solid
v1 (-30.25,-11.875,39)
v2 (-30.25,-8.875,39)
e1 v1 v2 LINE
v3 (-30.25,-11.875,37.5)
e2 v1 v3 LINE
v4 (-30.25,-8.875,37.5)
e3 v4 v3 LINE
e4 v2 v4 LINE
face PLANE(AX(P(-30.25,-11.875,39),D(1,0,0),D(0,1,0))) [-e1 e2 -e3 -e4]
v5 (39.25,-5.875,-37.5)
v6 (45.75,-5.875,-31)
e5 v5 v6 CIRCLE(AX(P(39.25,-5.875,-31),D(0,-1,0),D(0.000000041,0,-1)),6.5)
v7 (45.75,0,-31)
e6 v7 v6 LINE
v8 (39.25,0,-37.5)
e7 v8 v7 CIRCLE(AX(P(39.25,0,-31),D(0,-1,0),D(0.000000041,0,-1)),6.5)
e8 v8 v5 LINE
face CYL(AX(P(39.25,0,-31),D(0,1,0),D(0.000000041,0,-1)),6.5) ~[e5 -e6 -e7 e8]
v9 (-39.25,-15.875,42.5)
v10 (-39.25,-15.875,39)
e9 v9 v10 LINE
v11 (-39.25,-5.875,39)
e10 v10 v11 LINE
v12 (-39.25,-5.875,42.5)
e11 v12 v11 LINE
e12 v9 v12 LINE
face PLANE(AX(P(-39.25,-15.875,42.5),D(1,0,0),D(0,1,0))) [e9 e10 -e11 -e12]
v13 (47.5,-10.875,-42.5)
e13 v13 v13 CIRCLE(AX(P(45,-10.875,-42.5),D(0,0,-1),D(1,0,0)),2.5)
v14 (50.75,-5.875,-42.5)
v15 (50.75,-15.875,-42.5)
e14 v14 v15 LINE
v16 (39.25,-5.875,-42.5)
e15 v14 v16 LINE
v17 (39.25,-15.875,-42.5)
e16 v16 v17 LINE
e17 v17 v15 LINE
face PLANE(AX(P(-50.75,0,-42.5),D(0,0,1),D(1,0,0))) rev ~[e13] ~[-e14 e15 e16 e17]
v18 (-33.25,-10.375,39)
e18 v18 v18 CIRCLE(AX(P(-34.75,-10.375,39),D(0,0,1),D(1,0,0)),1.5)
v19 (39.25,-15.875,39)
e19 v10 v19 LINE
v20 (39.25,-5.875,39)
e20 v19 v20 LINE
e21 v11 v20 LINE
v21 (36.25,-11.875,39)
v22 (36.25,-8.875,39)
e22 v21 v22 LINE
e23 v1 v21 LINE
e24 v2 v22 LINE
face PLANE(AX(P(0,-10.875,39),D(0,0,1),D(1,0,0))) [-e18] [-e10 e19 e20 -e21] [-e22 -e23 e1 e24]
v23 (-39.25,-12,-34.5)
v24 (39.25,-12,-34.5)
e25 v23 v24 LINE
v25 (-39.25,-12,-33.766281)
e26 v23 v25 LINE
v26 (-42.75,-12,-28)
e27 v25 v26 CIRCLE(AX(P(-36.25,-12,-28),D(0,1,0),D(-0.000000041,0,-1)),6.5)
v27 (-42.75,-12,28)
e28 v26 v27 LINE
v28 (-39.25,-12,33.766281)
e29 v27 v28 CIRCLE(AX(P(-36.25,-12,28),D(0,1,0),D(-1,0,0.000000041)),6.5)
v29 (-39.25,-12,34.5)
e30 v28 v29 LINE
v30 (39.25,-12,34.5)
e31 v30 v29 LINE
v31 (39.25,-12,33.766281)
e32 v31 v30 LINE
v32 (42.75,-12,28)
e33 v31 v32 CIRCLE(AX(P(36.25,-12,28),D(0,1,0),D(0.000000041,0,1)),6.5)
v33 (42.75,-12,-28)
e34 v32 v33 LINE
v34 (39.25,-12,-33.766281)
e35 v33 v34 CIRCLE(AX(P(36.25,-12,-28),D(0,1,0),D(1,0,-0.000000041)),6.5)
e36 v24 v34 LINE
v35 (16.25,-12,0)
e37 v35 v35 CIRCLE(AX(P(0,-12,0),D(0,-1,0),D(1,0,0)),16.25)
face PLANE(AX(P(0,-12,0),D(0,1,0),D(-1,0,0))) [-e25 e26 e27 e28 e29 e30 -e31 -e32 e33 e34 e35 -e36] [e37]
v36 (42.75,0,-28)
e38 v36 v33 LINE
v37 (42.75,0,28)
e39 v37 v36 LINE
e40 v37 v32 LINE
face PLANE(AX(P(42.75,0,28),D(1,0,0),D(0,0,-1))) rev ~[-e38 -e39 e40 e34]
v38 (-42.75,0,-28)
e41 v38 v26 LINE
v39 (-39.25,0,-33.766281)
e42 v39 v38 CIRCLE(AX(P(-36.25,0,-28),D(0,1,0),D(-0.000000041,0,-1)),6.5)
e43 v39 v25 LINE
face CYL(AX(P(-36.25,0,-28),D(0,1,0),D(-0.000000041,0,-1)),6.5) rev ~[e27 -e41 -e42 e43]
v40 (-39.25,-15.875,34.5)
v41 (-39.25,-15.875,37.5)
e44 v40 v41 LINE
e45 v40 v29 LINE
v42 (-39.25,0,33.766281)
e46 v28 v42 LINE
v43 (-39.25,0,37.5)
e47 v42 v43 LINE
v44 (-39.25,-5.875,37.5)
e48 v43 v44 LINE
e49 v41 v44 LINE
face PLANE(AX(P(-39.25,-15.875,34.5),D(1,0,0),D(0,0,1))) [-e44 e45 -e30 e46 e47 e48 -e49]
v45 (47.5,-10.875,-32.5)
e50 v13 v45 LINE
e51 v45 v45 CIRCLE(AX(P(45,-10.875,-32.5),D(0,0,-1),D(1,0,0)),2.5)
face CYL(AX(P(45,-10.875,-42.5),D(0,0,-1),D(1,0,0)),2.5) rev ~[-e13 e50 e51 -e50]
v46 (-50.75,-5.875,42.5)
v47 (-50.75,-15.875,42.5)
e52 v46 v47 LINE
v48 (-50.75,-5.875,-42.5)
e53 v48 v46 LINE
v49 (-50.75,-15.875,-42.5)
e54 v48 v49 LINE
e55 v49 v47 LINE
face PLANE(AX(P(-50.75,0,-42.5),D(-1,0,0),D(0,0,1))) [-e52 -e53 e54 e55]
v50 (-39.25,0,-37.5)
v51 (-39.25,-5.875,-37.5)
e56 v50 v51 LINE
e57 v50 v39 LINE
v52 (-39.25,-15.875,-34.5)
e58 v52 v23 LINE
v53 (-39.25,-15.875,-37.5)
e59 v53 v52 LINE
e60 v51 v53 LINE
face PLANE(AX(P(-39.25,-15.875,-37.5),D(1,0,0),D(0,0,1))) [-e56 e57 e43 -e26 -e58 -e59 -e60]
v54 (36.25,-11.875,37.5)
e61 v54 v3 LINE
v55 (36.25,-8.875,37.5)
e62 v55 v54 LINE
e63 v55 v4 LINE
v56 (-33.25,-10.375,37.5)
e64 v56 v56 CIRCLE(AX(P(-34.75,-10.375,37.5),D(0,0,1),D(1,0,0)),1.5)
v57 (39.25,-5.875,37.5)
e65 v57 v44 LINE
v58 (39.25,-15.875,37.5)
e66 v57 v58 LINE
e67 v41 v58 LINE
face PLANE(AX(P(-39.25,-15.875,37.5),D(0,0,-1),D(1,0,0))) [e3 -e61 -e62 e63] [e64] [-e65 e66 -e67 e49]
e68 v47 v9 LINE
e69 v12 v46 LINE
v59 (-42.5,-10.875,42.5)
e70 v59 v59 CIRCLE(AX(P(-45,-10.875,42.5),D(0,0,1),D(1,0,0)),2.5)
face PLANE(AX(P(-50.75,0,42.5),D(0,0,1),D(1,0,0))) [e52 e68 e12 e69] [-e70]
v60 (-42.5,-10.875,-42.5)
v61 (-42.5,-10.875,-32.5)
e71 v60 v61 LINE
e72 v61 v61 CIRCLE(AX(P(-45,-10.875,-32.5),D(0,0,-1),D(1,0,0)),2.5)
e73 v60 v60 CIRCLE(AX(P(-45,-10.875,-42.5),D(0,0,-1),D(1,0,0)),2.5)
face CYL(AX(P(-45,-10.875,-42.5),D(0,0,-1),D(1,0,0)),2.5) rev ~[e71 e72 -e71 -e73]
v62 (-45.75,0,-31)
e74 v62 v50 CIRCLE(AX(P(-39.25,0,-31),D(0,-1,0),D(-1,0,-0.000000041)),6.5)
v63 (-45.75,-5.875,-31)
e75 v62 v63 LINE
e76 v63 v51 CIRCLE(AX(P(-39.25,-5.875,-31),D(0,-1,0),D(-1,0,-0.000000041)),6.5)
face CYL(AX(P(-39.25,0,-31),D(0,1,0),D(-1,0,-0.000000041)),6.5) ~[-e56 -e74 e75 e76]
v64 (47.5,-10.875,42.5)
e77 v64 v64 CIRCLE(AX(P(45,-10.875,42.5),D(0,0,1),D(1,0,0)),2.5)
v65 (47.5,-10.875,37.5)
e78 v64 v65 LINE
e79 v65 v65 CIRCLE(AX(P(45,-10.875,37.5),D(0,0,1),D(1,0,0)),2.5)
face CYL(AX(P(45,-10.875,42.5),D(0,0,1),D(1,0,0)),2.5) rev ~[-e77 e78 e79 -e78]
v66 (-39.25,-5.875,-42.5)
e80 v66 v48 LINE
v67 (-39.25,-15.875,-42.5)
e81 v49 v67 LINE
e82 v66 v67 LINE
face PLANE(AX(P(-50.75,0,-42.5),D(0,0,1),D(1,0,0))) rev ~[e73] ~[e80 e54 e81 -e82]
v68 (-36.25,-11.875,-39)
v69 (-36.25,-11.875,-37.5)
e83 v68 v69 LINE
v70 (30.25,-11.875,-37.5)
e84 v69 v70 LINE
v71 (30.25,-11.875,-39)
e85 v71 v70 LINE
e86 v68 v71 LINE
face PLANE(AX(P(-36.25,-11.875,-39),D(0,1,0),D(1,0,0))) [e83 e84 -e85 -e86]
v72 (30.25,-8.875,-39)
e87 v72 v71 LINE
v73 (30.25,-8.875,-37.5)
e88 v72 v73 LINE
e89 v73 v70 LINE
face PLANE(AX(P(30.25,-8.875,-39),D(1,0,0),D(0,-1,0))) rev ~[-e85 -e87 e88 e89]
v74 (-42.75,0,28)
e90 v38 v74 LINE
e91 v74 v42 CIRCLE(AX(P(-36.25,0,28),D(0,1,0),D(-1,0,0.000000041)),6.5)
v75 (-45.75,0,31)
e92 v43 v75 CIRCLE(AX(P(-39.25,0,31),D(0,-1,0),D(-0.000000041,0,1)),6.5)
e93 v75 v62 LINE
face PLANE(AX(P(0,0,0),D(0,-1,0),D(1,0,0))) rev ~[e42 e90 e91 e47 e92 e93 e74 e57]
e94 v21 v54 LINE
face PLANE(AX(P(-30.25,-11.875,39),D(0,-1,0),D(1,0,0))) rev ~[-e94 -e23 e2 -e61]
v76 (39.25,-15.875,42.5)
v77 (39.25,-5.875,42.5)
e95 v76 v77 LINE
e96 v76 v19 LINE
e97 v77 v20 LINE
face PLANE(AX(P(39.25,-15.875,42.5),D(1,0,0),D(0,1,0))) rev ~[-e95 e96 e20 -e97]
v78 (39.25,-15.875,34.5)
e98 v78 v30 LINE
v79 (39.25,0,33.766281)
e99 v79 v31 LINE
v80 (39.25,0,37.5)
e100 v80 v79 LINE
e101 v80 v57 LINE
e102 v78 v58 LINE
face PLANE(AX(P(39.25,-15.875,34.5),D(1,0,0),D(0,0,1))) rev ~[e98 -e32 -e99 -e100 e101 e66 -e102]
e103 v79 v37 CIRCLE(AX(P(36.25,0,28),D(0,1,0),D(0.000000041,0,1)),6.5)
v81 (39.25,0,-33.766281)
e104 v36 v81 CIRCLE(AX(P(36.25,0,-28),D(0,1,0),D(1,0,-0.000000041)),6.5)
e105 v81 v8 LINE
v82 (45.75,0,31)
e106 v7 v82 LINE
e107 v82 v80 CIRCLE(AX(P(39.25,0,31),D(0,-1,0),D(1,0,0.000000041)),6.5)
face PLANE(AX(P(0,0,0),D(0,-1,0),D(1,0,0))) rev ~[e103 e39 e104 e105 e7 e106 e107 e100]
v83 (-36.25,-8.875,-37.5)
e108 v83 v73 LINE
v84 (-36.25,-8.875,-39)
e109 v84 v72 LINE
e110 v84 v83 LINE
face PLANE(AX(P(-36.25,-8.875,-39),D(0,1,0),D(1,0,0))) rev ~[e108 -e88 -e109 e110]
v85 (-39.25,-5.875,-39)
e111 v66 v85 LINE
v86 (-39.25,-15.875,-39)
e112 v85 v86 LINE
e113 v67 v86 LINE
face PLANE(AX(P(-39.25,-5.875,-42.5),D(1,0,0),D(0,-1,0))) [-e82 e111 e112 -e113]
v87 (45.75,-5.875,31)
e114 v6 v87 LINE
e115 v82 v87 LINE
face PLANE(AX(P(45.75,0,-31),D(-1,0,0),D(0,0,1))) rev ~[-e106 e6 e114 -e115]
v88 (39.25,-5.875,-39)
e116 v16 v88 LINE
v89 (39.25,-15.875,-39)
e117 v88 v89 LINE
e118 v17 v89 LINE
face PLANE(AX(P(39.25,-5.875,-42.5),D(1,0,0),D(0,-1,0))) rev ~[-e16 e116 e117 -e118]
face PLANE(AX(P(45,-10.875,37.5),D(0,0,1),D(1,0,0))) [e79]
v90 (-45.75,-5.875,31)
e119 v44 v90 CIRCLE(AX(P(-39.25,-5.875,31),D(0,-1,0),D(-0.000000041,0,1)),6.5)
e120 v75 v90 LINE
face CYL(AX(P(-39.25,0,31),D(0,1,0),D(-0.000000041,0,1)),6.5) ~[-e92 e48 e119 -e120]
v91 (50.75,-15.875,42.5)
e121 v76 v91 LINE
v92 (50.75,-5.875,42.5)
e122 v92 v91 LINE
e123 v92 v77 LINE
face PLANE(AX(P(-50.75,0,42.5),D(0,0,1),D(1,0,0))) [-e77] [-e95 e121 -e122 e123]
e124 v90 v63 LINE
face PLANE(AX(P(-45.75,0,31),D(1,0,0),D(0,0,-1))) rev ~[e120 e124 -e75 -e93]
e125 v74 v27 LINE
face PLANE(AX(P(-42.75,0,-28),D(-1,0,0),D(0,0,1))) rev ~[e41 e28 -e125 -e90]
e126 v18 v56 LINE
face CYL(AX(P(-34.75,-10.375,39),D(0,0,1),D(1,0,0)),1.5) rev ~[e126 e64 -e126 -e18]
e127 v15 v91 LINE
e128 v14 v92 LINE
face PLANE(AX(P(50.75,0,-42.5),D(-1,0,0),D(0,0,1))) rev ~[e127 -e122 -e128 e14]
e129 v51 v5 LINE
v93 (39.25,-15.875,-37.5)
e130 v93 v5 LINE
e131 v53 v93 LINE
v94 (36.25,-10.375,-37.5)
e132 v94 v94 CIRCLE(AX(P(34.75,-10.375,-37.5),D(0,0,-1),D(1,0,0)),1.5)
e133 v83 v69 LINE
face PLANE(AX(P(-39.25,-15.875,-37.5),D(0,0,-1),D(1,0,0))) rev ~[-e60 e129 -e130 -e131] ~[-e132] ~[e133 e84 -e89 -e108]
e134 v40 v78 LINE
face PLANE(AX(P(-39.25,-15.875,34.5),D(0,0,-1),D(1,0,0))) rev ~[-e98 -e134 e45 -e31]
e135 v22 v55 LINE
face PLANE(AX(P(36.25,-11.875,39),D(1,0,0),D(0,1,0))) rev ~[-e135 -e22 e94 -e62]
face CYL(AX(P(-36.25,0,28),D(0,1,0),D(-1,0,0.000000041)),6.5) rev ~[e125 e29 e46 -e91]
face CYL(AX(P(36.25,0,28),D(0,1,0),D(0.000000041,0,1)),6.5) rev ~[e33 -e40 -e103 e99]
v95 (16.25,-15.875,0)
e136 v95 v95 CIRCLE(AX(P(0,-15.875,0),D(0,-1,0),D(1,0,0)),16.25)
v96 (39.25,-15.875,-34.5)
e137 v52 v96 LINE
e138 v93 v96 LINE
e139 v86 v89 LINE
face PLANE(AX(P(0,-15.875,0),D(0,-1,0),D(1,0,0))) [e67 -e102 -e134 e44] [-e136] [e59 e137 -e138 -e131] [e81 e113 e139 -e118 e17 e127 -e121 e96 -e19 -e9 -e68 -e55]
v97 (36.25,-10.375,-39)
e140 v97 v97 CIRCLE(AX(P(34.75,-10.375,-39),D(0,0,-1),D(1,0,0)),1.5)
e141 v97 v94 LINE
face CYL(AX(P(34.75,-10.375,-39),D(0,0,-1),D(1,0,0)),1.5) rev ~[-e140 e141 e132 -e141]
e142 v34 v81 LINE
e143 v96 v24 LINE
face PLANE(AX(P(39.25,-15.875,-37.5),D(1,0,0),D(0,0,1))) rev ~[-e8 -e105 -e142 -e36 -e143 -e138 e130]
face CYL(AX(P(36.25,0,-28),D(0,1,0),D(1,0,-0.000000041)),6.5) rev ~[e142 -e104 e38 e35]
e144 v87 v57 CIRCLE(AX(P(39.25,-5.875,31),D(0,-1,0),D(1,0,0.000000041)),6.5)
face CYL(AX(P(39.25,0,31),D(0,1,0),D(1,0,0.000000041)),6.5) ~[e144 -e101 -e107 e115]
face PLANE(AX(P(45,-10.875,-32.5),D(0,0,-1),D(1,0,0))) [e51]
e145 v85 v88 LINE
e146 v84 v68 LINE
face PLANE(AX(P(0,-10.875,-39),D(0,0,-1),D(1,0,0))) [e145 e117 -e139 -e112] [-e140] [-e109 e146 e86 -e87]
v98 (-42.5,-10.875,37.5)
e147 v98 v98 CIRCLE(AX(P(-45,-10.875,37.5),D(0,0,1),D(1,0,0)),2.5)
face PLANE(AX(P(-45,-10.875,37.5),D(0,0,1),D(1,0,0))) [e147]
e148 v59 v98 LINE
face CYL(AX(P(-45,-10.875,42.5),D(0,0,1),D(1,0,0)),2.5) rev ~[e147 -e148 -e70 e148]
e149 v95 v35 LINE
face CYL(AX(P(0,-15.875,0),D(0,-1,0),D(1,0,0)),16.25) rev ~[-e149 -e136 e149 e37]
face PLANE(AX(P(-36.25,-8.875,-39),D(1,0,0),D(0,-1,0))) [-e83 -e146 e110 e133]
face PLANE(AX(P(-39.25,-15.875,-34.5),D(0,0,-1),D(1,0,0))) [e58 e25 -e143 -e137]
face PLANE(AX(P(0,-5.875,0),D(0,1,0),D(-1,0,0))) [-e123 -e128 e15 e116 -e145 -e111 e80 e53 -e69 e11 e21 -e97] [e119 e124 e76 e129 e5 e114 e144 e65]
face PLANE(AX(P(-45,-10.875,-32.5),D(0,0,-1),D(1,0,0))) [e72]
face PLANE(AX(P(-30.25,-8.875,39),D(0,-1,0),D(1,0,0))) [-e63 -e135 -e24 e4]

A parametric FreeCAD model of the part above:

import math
import FreeCAD as App
import Part
import Sketcher
from FreeCAD import Vector

doc = App.newDocument("Part")
body = doc.addObject("PartDesign::Body", "Body")

# Sketch on XZ plane
sketch1 = body.newObject("Sketcher::SketchObject", "Sketch")
sketch1.AttachmentSupport = (doc.getObject("XZ_Plane"), [""])
sketch1.MapMode = "FlatFace"
sketch1.addGeometry(Part.LineSegment(Vector(-51, 42, 0), Vector(-51, -42, 0)), False)
sketch1.addGeometry(Part.LineSegment(Vector(-51, -42, 0), Vector(51, -42, 0)), False)
sketch1.addGeometry(Part.LineSegment(Vector(51, -42, 0), Vector(51, 42, 0)), False)
sketch1.addGeometry(Part.LineSegment(Vector(51, 42, 0), Vector(-51, 42, 0)), False)
sketch1.addConstraint(Sketcher.Constraint("Coincident", 0, 2, 1, 1))
sketch1.addConstraint(Sketcher.Constraint("Coincident", 1, 2, 2, 1))
sketch1.addConstraint(Sketcher.Constraint("Coincident", 2, 2, 3, 1))
sketch1.addConstraint(Sketcher.Constraint("Coincident", 3, 2, 0, 1))
sketch1.addConstraint(Sketcher.Constraint("Vertical", 0))
sketch1.addConstraint(Sketcher.Constraint("Horizontal", 1))
sketch1.addConstraint(Sketcher.Constraint("Vertical", 2))
sketch1.addConstraint(Sketcher.Constraint("Horizontal", 3))
sketch1.addConstraint(Sketcher.Constraint("Symmetric", 0, 2, 2, 2, -1, 1))
sketch1.addConstraint(Sketcher.Constraint("DistanceY", 0, 2, 0, 1, 85.0))
sketch1.addConstraint(Sketcher.Constraint("DistanceX", 1, 1, 1, 2, 101.5))
pad1 = body.newObject("PartDesign::Pad", "Pad")
pad1.Profile = sketch1
pad1.Length = 15.875

# Sketch on XZ plane
sketch2 = body.newObject("Sketcher::SketchObject", "Sketch001")
sketch2.AttachmentSupport = (doc.getObject("XZ_Plane"), [""])
sketch2.MapMode = "FlatFace"
sketch2.AttachmentOffset = App.Placement(Vector(0, 0, 15.875), App.Rotation())
sketch2.addGeometry(Part.Circle(Vector(0, 0, 0), Vector(0, 0, 1), 16), False)
sketch2.addConstraint(Sketcher.Constraint("Coincident", 0, 3, -1, 1))
sketch2.addConstraint(Sketcher.Constraint("Diameter", 0, 32.5))
pocket1 = body.newObject("PartDesign::Pocket", "Pocket")
pocket1.Profile = sketch2
pocket1.Length = 25

# Sketch on XZ plane
sketch3 = body.newObject("Sketcher::SketchObject", "Sketch002")
sketch3.AttachmentSupport = (doc.getObject("XZ_Plane"), [""])
sketch3.MapMode = "FlatFace"
sketch3.addGeometry(Part.LineSegment(Vector(51, 42, 0), Vector(51, -42, 0)), False)
sketch3.addGeometry(Part.LineSegment(Vector(51, -42, 0), Vector(-51, -42, 0)), False)
sketch3.addGeometry(Part.LineSegment(Vector(-51, -42, 0), Vector(-51, 42, 0)), False)
sketch3.addGeometry(Part.LineSegment(Vector(-51, 42, 0), Vector(51, 42, 0)), False)
sketch3.addGeometry(Part.ArcOfCircle(Part.Circle(Vector(39, -31, 0), Vector(0, 0, 1), 7), math.radians(-90), math.radians(0)), False)
sketch3.addGeometry(Part.LineSegment(Vector(46, -31, 0), Vector(46, 31, 0)), False)
sketch3.addGeometry(Part.ArcOfCircle(Part.Circle(Vector(39, 31, 0), Vector(0, 0, 1), 7), math.radians(0), math.radians(90)), False)
sketch3.addGeometry(Part.LineSegment(Vector(39, 38, 0), Vector(-39, 38, 0)), False)
sketch3.addGeometry(Part.ArcOfCircle(Part.Circle(Vector(-39, 31, 0), Vector(0, 0, 1), 7), math.radians(90), math.radians(180)), False)
sketch3.addGeometry(Part.LineSegment(Vector(-46, 31, 0), Vector(-46, -31, 0)), False)
sketch3.addGeometry(Part.ArcOfCircle(Part.Circle(Vector(-39, -31, 0), Vector(0, 0, 1), 7), math.radians(-180), math.radians(-90)), False)
sketch3.addGeometry(Part.LineSegment(Vector(-39, -38, 0), Vector(39, -38, 0)), False)
sketch3.addConstraint(Sketcher.Constraint("Coincident", 0, 2, 1, 1))
sketch3.addConstraint(Sketcher.Constraint("Coincident", 1, 2, 2, 1))
sketch3.addConstraint(Sketcher.Constraint("Coincident", 2, 2, 3, 1))
sketch3.addConstraint(Sketcher.Constraint("Coincident", 3, 2, 0, 1))
sketch3.addConstraint(Sketcher.Constraint("Tangent", 4, 2, 5, 1))
sketch3.addConstraint(Sketcher.Constraint("Tangent", 5, 2, 6, 1))
sketch3.addConstraint(Sketcher.Constraint("Tangent", 6, 2, 7, 1))
sketch3.addConstraint(Sketcher.Constraint("Tangent", 7, 2, 8, 1))
sketch3.addConstraint(Sketcher.Constraint("Tangent", 8, 2, 9, 1))
sketch3.addConstraint(Sketcher.Constraint("Tangent", 9, 2, 10, 1))
sketch3.addConstraint(Sketcher.Constraint("Tangent", 10, 2, 11, 1))
sketch3.addConstraint(Sketcher.Constraint("Tangent", 11, 2, 4, 1))
sketch3.addConstraint(Sketcher.Constraint("Vertical", 0))
sketch3.addConstraint(Sketcher.Constraint("Horizontal", 1))
sketch3.addConstraint(Sketcher.Constraint("Vertical", 2))
sketch3.addConstraint(Sketcher.Constraint("Horizontal", 3))
sketch3.addConstraint(Sketcher.Constraint("Vertical", 5))
sketch3.addConstraint(Sketcher.Constraint("Horizontal", 7))
sketch3.addConstraint(Sketcher.Constraint("Vertical", 9))
sketch3.addConstraint(Sketcher.Constraint("Horizontal", 11))
sketch3.addConstraint(Sketcher.Constraint("Equal", 4, 6))
sketch3.addConstraint(Sketcher.Constraint("Equal", 6, 8))
sketch3.addConstraint(Sketcher.Constraint("Equal", 8, 10))
sketch3.addConstraint(Sketcher.Constraint("Symmetric", 4, 3, 8, 3, -1, 1))
sketch3.addConstraint(Sketcher.Constraint("Symmetric", 0, 2, 2, 2, -1, 1))
sketch3.addConstraint(Sketcher.Constraint("Radius", 4, 6.5))
sketch3.addConstraint(Sketcher.Constraint("DistanceY", 0, 2, 0, 1, 85.0))
sketch3.addConstraint(Sketcher.Constraint("DistanceY", 5, 1, 5, 2, 62.0))
sketch3.addConstraint(Sketcher.Constraint("DistanceX", 1, 2, 1, 1, 101.5))
sketch3.addConstraint(Sketcher.Constraint("DistanceX", 7, 2, 7, 1, 78.5))
pocket2 = body.newObject("PartDesign::Pocket", "Pocket001")
pocket2.Profile = sketch3
pocket2.Length = 5.875
pocket2.Reversed = True

# Sketch on XZ plane
sketch4 = body.newObject("Sketcher::SketchObject", "Sketch003")
sketch4.AttachmentSupport = (doc.getObject("XZ_Plane"), [""])
sketch4.MapMode = "FlatFace"
sketch4.addGeometry(Part.ArcOfCircle(Part.Circle(Vector(36, 28, 0), Vector(0, 0, 1), 7), math.radians(0), math.radians(90)), False)
sketch4.addGeometry(Part.LineSegment(Vector(43, 28, 0), Vector(43, -28, 0)), False)
sketch4.addGeometry(Part.ArcOfCircle(Part.Circle(Vector(36, -28, 0), Vector(0, 0, 1), 7), math.radians(-90), math.radians(0)), False)
sketch4.addGeometry(Part.LineSegment(Vector(36, -34, 0), Vector(-36, -34, 0)), False)
sketch4.addGeometry(Part.ArcOfCircle(Part.Circle(Vector(-36, -28, 0), Vector(0, 0, 1), 7), math.radians(-180), math.radians(-90)), False)
sketch4.addGeometry(Part.LineSegment(Vector(-43, -28, 0), Vector(-43, 28, 0)), False)
sketch4.addGeometry(Part.ArcOfCircle(Part.Circle(Vector(-36, 28, 0), Vector(0, 0, 1), 7), math.radians(90), math.radians(180)), False)
sketch4.addGeometry(Part.LineSegment(Vector(-36, 34, 0), Vector(36, 34, 0)), False)
sketch4.addConstraint(Sketcher.Constraint("Tangent", 0, 1, 1, 1))
sketch4.addConstraint(Sketcher.Constraint("Tangent", 1, 2, 2, 2))
sketch4.addConstraint(Sketcher.Constraint("Tangent", 2, 1, 3, 1))
sketch4.addConstraint(Sketcher.Constraint("Tangent", 3, 2, 4, 2))
sketch4.addConstraint(Sketcher.Constraint("Tangent", 4, 1, 5, 1))
sketch4.addConstraint(Sketcher.Constraint("Tangent", 5, 2, 6, 2))
sketch4.addConstraint(Sketcher.Constraint("Tangent", 6, 1, 7, 1))
sketch4.addConstraint(Sketcher.Constraint("Tangent", 7, 2, 0, 2))
sketch4.addConstraint(Sketcher.Constraint("Vertical", 1))
sketch4.addConstraint(Sketcher.Constraint("Horizontal", 3))
sketch4.addConstraint(Sketcher.Constraint("Vertical", 5))
sketch4.addConstraint(Sketcher.Constraint("Horizontal", 7))
sketch4.addConstraint(Sketcher.Constraint("Equal", 0, 2))
sketch4.addConstraint(Sketcher.Constraint("Equal", 2, 4))
sketch4.addConstraint(Sketcher.Constraint("Equal", 4, 6))
sketch4.addConstraint(Sketcher.Constraint("Symmetric", 0, 3, 4, 3, -1, 1))
sketch4.addConstraint(Sketcher.Constraint("Radius", 0, 6.5))
sketch4.addConstraint(Sketcher.Constraint("DistanceY", 1, 2, 1, 1, 56.0))
sketch4.addConstraint(Sketcher.Constraint("DistanceX", 3, 2, 3, 1, 72.5))
pocket3 = body.newObject("PartDesign::Pocket", "Pocket002")
pocket3.Profile = sketch4
pocket3.Length = 12
pocket3.Reversed = True

# Sketch on XY plane
sketch5 = body.newObject("Sketcher::SketchObject", "Sketch004")
sketch5.AttachmentSupport = (doc.getObject("XY_Plane"), [""])
sketch5.MapMode = "FlatFace"
sketch5.AttachmentOffset = App.Placement(Vector(0, 0, 42.5), App.Rotation())
sketch5.addGeometry(Part.LineSegment(Vector(-39, -6, 0), Vector(-39, -16, 0)), False)
sketch5.addGeometry(Part.LineSegment(Vector(-39, -16, 0), Vector(39, -16, 0)), False)
sketch5.addGeometry(Part.LineSegment(Vector(39, -16, 0), Vector(39, -6, 0)), False)
sketch5.addGeometry(Part.LineSegment(Vector(39, -6, 0), Vector(-39, -6, 0)), False)
sketch5.addConstraint(Sketcher.Constraint("Coincident", 0, 2, 1, 1))
sketch5.addConstraint(Sketcher.Constraint("Coincident", 1, 2, 2, 1))
sketch5.addConstraint(Sketcher.Constraint("Coincident", 2, 2, 3, 1))
sketch5.addConstraint(Sketcher.Constraint("Coincident", 3, 2, 0, 1))
sketch5.addConstraint(Sketcher.Constraint("Vertical", 0))
sketch5.addConstraint(Sketcher.Constraint("Horizontal", 1))
sketch5.addConstraint(Sketcher.Constraint("Vertical", 2))
sketch5.addConstraint(Sketcher.Constraint("Horizontal", 3))
sketch5.addConstraint(Sketcher.Constraint("DistanceY", 0, 2, 0, 1, 10.0))
sketch5.addConstraint(Sketcher.Constraint("DistanceX", 1, 1, 1, 2, 78.5))
sketch5.addConstraint(Sketcher.Constraint("DistanceX", 0, 2, -1, 1, 39.25))
sketch5.addConstraint(Sketcher.Constraint("DistanceY", 0, 2, -1, 1, 15.875))
pocket4 = body.newObject("PartDesign::Pocket", "Pocket003")
pocket4.Profile = sketch5
pocket4.Length = 3.5

# Sketch on XY plane
sketch6 = body.newObject("Sketcher::SketchObject", "Sketch005")
sketch6.AttachmentSupport = (doc.getObject("XY_Plane"), [""])
sketch6.MapMode = "FlatFace"
sketch6.AttachmentOffset = App.Placement(Vector(0, 0, -42.5), App.Rotation())
sketch6.addGeometry(Part.LineSegment(Vector(-39, -16, 0), Vector(-39, -6, 0)), False)
sketch6.addGeometry(Part.LineSegment(Vector(-39, -6, 0), Vector(39, -6, 0)), False)
sketch6.addGeometry(Part.LineSegment(Vector(39, -6, 0), Vector(39, -16, 0)), False)
sketch6.addGeometry(Part.LineSegment(Vector(39, -16, 0), Vector(-39, -16, 0)), False)
sketch6.addConstraint(Sketcher.Constraint("Coincident", 0, 2, 1, 1))
sketch6.addConstraint(Sketcher.Constraint("Coincident", 1, 2, 2, 1))
sketch6.addConstraint(Sketcher.Constraint("Coincident", 2, 2, 3, 1))
sketch6.addConstraint(Sketcher.Constraint("Coincident", 3, 2, 0, 1))
sketch6.addConstraint(Sketcher.Constraint("Vertical", 0))
sketch6.addConstraint(Sketcher.Constraint("Horizontal", 1))
sketch6.addConstraint(Sketcher.Constraint("Vertical", 2))
sketch6.addConstraint(Sketcher.Constraint("Horizontal", 3))
sketch6.addConstraint(Sketcher.Constraint("DistanceY", 0, 1, 0, 2, 10.0))
sketch6.addConstraint(Sketcher.Constraint("DistanceX", 1, 1, 1, 2, 78.5))
sketch6.addConstraint(Sketcher.Constraint("DistanceX", 0, 2, -1, 1, 39.25))
sketch6.addConstraint(Sketcher.Constraint("DistanceY", 0, 2, -1, 1, 5.875))
pocket5 = body.newObject("PartDesign::Pocket", "Pocket004")
pocket5.Profile = sketch6
pocket5.Length = 3.5
pocket5.Reversed = True

# Sketch on XZ plane
sketch7 = body.newObject("Sketcher::SketchObject", "Sketch006")
sketch7.AttachmentSupport = (doc.getObject("XZ_Plane"), [""])
sketch7.MapMode = "FlatFace"
sketch7.AttachmentOffset = App.Placement(Vector(0, 0, 15.875), App.Rotation())
sketch7.addGeometry(Part.LineSegment(Vector(-39.2, 37.5, 0), Vector(-39.2, 34.5, 0)), False)
sketch7.addGeometry(Part.LineSegment(Vector(-39.2, 34.5, 0), Vector(39.2, 34.5, 0)), False)
sketch7.addGeometry(Part.LineSegment(Vector(39.2, 34.5, 0), Vector(39.2, 37.5, 0)), False)
sketch7.addGeometry(Part.LineSegment(Vector(39.2, 37.5, 0), Vector(-39.2, 37.5, 0)), False)
sketch7.addGeometry(Part.LineSegment(Vector(-39.2, -34.5, 0), Vector(-39.2, -37.5, 0)), False)
sketch7.addGeometry(Part.LineSegment(Vector(-39.2, -37.5, 0), Vector(39.2, -37.5, 0)), False)
sketch7.addGeometry(Part.LineSegment(Vector(39.2, -37.5, 0), Vector(39.2, -34.5, 0)), False)
sketch7.addGeometry(Part.LineSegment(Vector(39.2, -34.5, 0), Vector(-39.2, -34.5, 0)), False)
sketch7.addConstraint(Sketcher.Constraint("Coincident", 0, 2, 1, 1))
sketch7.addConstraint(Sketcher.Constraint("Coincident", 1, 2, 2, 1))
sketch7.addConstraint(Sketcher.Constraint("Coincident", 2, 2, 3, 1))
sketch7.addConstraint(Sketcher.Constraint("Coincident", 3, 2, 0, 1))
sketch7.addConstraint(Sketcher.Constraint("Coincident", 4, 2, 5, 1))
sketch7.addConstraint(Sketcher.Constraint("Coincident", 5, 2, 6, 1))
sketch7.addConstraint(Sketcher.Constraint("Coincident", 6, 2, 7, 1))
sketch7.addConstraint(Sketcher.Constraint("Coincident", 7, 2, 4, 1))
sketch7.addConstraint(Sketcher.Constraint("Vertical", 0))
sketch7.addConstraint(Sketcher.Constraint("Horizontal", 1))
sketch7.addConstraint(Sketcher.Constraint("Vertical", 2))
sketch7.addConstraint(Sketcher.Constraint("Horizontal", 3))
sketch7.addConstraint(Sketcher.Constraint("Vertical", 4))
sketch7.addConstraint(Sketcher.Constraint("Horizontal", 5))
sketch7.addConstraint(Sketcher.Constraint("Vertical", 6))
sketch7.addConstraint(Sketcher.Constraint("Horizontal", 7))
sketch7.addConstraint(Sketcher.Constraint("Symmetric", 2, 2, 4, 2, -1, 1))
sketch7.addConstraint(Sketcher.Constraint("Symmetric", 0, 2, 6, 2, -1, 1))
sketch7.addConstraint(Sketcher.Constraint("Vertical", 3, 2, 4, 2))
sketch7.addConstraint(Sketcher.Constraint("DistanceY", 0, 2, 0, 1, 3.0))
sketch7.addConstraint(Sketcher.Constraint("DistanceX", 1, 1, 1, 2, 78.5))
sketch7.addConstraint(Sketcher.Constraint("DistanceY", 4, 2, 0, 2, 72.0))
pocket6 = body.newObject("PartDesign::Pocket", "Pocket005")
pocket6.Profile = sketch7
pocket6.Length = 25

# Sketch on XY plane
sketch8 = body.newObject("Sketcher::SketchObject", "Sketch007")
sketch8.AttachmentSupport = (doc.getObject("XY_Plane"), [""])
sketch8.MapMode = "FlatFace"
sketch8.AttachmentOffset = App.Placement(Vector(0, 0, 39), App.Rotation())
sketch8.addGeometry(Part.LineSegment(Vector(-39, 12, 0), Vector(-39, -6, 0)), False)
sketch8.addGeometry(Part.LineSegment(Vector(-39, -6, 0), Vector(39, -6, 0)), False)
sketch8.addGeometry(Part.LineSegment(Vector(39, -6, 0), Vector(39, 12, 0)), False)
sketch8.addGeometry(Part.LineSegment(Vector(39, 12, 0), Vector(-39, 12, 0)), False)
sketch8.addConstraint(Sketcher.Constraint("Coincident", 0, 2, 1, 1))
sketch8.addConstraint(Sketcher.Constraint("Coincident", 1, 2, 2, 1))
sketch8.addConstraint(Sketcher.Constraint("Coincident", 2, 2, 3, 1))
sketch8.addConstraint(Sketcher.Constraint("Coincident", 3, 2, 0, 1))
sketch8.addConstraint(Sketcher.Constraint("Vertical", 0))
sketch8.addConstraint(Sketcher.Constraint("Horizontal", 1))
sketch8.addConstraint(Sketcher.Constraint("Vertical", 2))
sketch8.addConstraint(Sketcher.Constraint("Horizontal", 3))
sketch8.addConstraint(Sketcher.Constraint("DistanceX", 1, 1, 1, 2, 78.5))
sketch8.addConstraint(Sketcher.Constraint("DistanceX", 0, 2, -1, 1, 39.25))
sketch8.addConstraint(Sketcher.Constraint("DistanceY", 0, 2, -1, 1, 5.875))
sketch8.addConstraint(Sketcher.Constraint("DistanceY", 0, 2, 0, 1, 17.569206))
pocket7 = body.newObject("PartDesign::Pocket", "Pocket006")
pocket7.Profile = sketch8
pocket7.Length = 200

# Sketch on XZ plane
sketch9 = body.newObject("Sketcher::SketchObject", "Sketch008")
sketch9.AttachmentSupport = (doc.getObject("XZ_Plane"), [""])
sketch9.MapMode = "FlatFace"
sketch9.AttachmentOffset = App.Placement(Vector(0, 0, 5.875), App.Rotation())
sketch9.addGeometry(Part.LineSegment(Vector(39, 38, 0), Vector(39, -38, 0)), False)
sketch9.addGeometry(Part.LineSegment(Vector(39, -38, 0), Vector(-39, -38, 0)), False)
sketch9.addGeometry(Part.LineSegment(Vector(-39, -38, 0), Vector(-39, 38, 0)), False)
sketch9.addGeometry(Part.LineSegment(Vector(-39, 38, 0), Vector(39, 38, 0)), False)
sketch9.addConstraint(Sketcher.Constraint("Coincident", 0, 2, 1, 1))
sketch9.addConstraint(Sketcher.Constraint("Coincident", 1, 2, 2, 1))
sketch9.addConstraint(Sketcher.Constraint("Coincident", 2, 2, 3, 1))
sketch9.addConstraint(Sketcher.Constraint("Coincident", 3, 2, 0, 1))
sketch9.addConstraint(Sketcher.Constraint("Vertical", 0))
sketch9.addConstraint(Sketcher.Constraint("Horizontal", 1))
sketch9.addConstraint(Sketcher.Constraint("Vertical", 2))
sketch9.addConstraint(Sketcher.Constraint("Horizontal", 3))
sketch9.addConstraint(Sketcher.Constraint("Symmetric", 0, 2, 2, 2, -1, 1))
sketch9.addConstraint(Sketcher.Constraint("DistanceY", 0, 2, 0, 1, 75.0))
sketch9.addConstraint(Sketcher.Constraint("DistanceX", 1, 2, 1, 1, 78.5))
pocket8 = body.newObject("PartDesign::Pocket", "Pocket007")
pocket8.Profile = sketch9
pocket8.Length = 6.125
pocket8.Reversed = True

# Sketch on XY plane
sketch10 = body.newObject("Sketcher::SketchObject", "Sketch009")
sketch10.AttachmentSupport = (doc.getObject("XY_Plane"), [""])
sketch10.MapMode = "FlatFace"
sketch10.AttachmentOffset = App.Placement(Vector(0, 0, 39), App.Rotation())
sketch10.addGeometry(Part.Circle(Vector(-34.8, -10.4, 0), Vector(0, 0, 1), 1.5), False)
sketch10.addGeometry(Part.LineSegment(Vector(-30.2, -8.9, 0), Vector(-30.2, -11.9, 0)), False)
sketch10.addGeometry(Part.LineSegment(Vector(-30.2, -11.9, 0), Vector(36.2, -11.9, 0)), False)
sketch10.addGeometry(Part.LineSegment(Vector(36.2, -11.9, 0), Vector(36.2, -8.9, 0)), False)
sketch10.addGeometry(Part.LineSegment(Vector(36.2, -8.9, 0), Vector(-30.2, -8.9, 0)), False)
sketch10.addConstraint(Sketcher.Constraint("Coincident", 1, 2, 2, 1))
sketch10.addConstraint(Sketcher.Constraint("Coincident", 2, 2, 3, 1))
sketch10.addConstraint(Sketcher.Constraint("Coincident", 3, 2, 4, 1))
sketch10.addConstraint(Sketcher.Constraint("Coincident", 4, 2, 1, 1))
sketch10.addConstraint(Sketcher.Constraint("Vertical", 1))
sketch10.addConstraint(Sketcher.Constraint("Horizontal", 2))
sketch10.addConstraint(Sketcher.Constraint("Vertical", 3))
sketch10.addConstraint(Sketcher.Constraint("Horizontal", 4))
sketch10.addConstraint(Sketcher.Constraint("Diameter", 0, 3.0))
sketch10.addConstraint(Sketcher.Constraint("DistanceY", 1, 2, 1, 1, 3.0))
sketch10.addConstraint(Sketcher.Constraint("DistanceX", 2, 1, 2, 2, 66.5))
sketch10.addConstraint(Sketcher.Constraint("DistanceX", 0, 3, 2, 2, 71.0))
sketch10.addConstraint(Sketcher.Constraint("DistanceY", 1, 2, 0, 3, 1.5))
sketch10.addConstraint(Sketcher.Constraint("DistanceX", 0, 3, -1, 1, 34.75))
sketch10.addConstraint(Sketcher.Constraint("DistanceY", 0, 3, -1, 1, 10.375))
pocket9 = body.newObject("PartDesign::Pocket", "Pocket008")
pocket9.Profile = sketch10
pocket9.Length = 2

# Sketch on XY plane
sketch11 = body.newObject("Sketcher::SketchObject", "Sketch010")
sketch11.AttachmentSupport = (doc.getObject("XY_Plane"), [""])
sketch11.MapMode = "FlatFace"
sketch11.AttachmentOffset = App.Placement(Vector(0, 0, -39), App.Rotation())
sketch11.addGeometry(Part.Circle(Vector(34.8, -10.4, 0), Vector(0, 0, 1), 1.5), False)
sketch11.addGeometry(Part.LineSegment(Vector(-36.2, -11.9, 0), Vector(-36.2, -8.9, 0)), False)
sketch11.addGeometry(Part.LineSegment(Vector(-36.2, -8.9, 0), Vector(30.2, -8.9, 0)), False)
sketch11.addGeometry(Part.LineSegment(Vector(30.2, -8.9, 0), Vector(30.2, -11.9, 0)), False)
sketch11.addGeometry(Part.LineSegment(Vector(30.2, -11.9, 0), Vector(-36.2, -11.9, 0)), False)
sketch11.addConstraint(Sketcher.Constraint("Coincident", 1, 2, 2, 1))
sketch11.addConstraint(Sketcher.Constraint("Coincident", 2, 2, 3, 1))
sketch11.addConstraint(Sketcher.Constraint("Coincident", 3, 2, 4, 1))
sketch11.addConstraint(Sketcher.Constraint("Coincident", 4, 2, 1, 1))
sketch11.addConstraint(Sketcher.Constraint("Vertical", 1))
sketch11.addConstraint(Sketcher.Constraint("Horizontal", 2))
sketch11.addConstraint(Sketcher.Constraint("Vertical", 3))
sketch11.addConstraint(Sketcher.Constraint("Horizontal", 4))
sketch11.addConstraint(Sketcher.Constraint("Diameter", 0, 3.0))
sketch11.addConstraint(Sketcher.Constraint("DistanceY", 1, 1, 1, 2, 3.0))
sketch11.addConstraint(Sketcher.Constraint("DistanceX", 2, 1, 2, 2, 66.5))
sketch11.addConstraint(Sketcher.Constraint("DistanceX", 1, 2, 0, 3, 71.0))
sketch11.addConstraint(Sketcher.Constraint("DistanceY", 0, 3, 1, 2, 1.5))
sketch11.addConstraint(Sketcher.Constraint("DistanceX", -1, 1, 0, 3, 34.75))
sketch11.addConstraint(Sketcher.Constraint("DistanceY", 0, 3, -1, 1, 10.375))
pocket10 = body.newObject("PartDesign::Pocket", "Pocket009")
pocket10.Profile = sketch11
pocket10.Length = 2
pocket10.Reversed = True

# Sketch on XY plane
sketch12 = body.newObject("Sketcher::SketchObject", "Sketch011")
sketch12.AttachmentSupport = (doc.getObject("XY_Plane"), [""])
sketch12.MapMode = "FlatFace"
sketch12.AttachmentOffset = App.Placement(Vector(0, 0, -42.5), App.Rotation())
sketch12.addGeometry(Part.Circle(Vector(-45, -10.9, 0), Vector(0, 0, 1), 2.5), False)
sketch12.addConstraint(Sketcher.Constraint("Diameter", 0, 5.0))
sketch12.addConstraint(Sketcher.Constraint("DistanceX", 0, 3, -1, 1, 45.0))
sketch12.addConstraint(Sketcher.Constraint("DistanceY", 0, 3, -1, 1, 10.875))
pocket11 = body.newObject("PartDesign::Pocket", "Pocket010")
pocket11.Profile = sketch12
pocket11.Length = 10
pocket11.Reversed = True

# Sketch on XY plane
sketch13 = body.newObject("Sketcher::SketchObject", "Sketch012")
sketch13.AttachmentSupport = (doc.getObject("XY_Plane"), [""])
sketch13.MapMode = "FlatFace"
sketch13.AttachmentOffset = App.Placement(Vector(0, 0, -42.5), App.Rotation())
sketch13.addGeometry(Part.Circle(Vector(45, -10.9, 0), Vector(0, 0, 1), 2.5), False)
sketch13.addConstraint(Sketcher.Constraint("Diameter", 0, 5.0))
sketch13.addConstraint(Sketcher.Constraint("DistanceX", -1, 1, 0, 3, 45.0))
sketch13.addConstraint(Sketcher.Constraint("DistanceY", 0, 3, -1, 1, 10.875))
pocket12 = body.newObject("PartDesign::Pocket", "Pocket011")
pocket12.Profile = sketch13
pocket12.Length = 10
pocket12.Reversed = True

# Sketch on XY plane
sketch14 = body.newObject("Sketcher::SketchObject", "Sketch013")
sketch14.AttachmentSupport = (doc.getObject("XY_Plane"), [""])
sketch14.MapMode = "FlatFace"
sketch14.AttachmentOffset = App.Placement(Vector(0, 0, 42.5), App.Rotation())
sketch14.addGeometry(Part.Circle(Vector(-45, -10.9, 0), Vector(0, 0, 1), 2.5), False)
sketch14.addConstraint(Sketcher.Constraint("Diameter", 0, 5.0))
sketch14.addConstraint(Sketcher.Constraint("DistanceX", 0, 3, -1, 1, 45.0))
sketch14.addConstraint(Sketcher.Constraint("DistanceY", 0, 3, -1, 1, 10.875))
pocket13 = body.newObject("PartDesign::Pocket", "Pocket012")
pocket13.Profile = sketch14
pocket13.Length = 5

# Sketch on XY plane
sketch15 = body.newObject("Sketcher::SketchObject", "Sketch014")
sketch15.AttachmentSupport = (doc.getObject("XY_Plane"), [""])
sketch15.MapMode = "FlatFace"
sketch15.AttachmentOffset = App.Placement(Vector(0, 0, 42.5), App.Rotation())
sketch15.addGeometry(Part.Circle(Vector(45, -10.9, 0), Vector(0, 0, 1), 2.5), False)
sketch15.addConstraint(Sketcher.Constraint("Diameter", 0, 5.0))
sketch15.addConstraint(Sketcher.Constraint("DistanceX", -1, 1, 0, 3, 45.0))
sketch15.addConstraint(Sketcher.Constraint("DistanceY", 0, 3, -1, 1, 10.875))
pocket14 = body.newObject("PartDesign::Pocket", "Pocket013")
pocket14.Profile = sketch15
pocket14.Length = 5

doc.recompute()
